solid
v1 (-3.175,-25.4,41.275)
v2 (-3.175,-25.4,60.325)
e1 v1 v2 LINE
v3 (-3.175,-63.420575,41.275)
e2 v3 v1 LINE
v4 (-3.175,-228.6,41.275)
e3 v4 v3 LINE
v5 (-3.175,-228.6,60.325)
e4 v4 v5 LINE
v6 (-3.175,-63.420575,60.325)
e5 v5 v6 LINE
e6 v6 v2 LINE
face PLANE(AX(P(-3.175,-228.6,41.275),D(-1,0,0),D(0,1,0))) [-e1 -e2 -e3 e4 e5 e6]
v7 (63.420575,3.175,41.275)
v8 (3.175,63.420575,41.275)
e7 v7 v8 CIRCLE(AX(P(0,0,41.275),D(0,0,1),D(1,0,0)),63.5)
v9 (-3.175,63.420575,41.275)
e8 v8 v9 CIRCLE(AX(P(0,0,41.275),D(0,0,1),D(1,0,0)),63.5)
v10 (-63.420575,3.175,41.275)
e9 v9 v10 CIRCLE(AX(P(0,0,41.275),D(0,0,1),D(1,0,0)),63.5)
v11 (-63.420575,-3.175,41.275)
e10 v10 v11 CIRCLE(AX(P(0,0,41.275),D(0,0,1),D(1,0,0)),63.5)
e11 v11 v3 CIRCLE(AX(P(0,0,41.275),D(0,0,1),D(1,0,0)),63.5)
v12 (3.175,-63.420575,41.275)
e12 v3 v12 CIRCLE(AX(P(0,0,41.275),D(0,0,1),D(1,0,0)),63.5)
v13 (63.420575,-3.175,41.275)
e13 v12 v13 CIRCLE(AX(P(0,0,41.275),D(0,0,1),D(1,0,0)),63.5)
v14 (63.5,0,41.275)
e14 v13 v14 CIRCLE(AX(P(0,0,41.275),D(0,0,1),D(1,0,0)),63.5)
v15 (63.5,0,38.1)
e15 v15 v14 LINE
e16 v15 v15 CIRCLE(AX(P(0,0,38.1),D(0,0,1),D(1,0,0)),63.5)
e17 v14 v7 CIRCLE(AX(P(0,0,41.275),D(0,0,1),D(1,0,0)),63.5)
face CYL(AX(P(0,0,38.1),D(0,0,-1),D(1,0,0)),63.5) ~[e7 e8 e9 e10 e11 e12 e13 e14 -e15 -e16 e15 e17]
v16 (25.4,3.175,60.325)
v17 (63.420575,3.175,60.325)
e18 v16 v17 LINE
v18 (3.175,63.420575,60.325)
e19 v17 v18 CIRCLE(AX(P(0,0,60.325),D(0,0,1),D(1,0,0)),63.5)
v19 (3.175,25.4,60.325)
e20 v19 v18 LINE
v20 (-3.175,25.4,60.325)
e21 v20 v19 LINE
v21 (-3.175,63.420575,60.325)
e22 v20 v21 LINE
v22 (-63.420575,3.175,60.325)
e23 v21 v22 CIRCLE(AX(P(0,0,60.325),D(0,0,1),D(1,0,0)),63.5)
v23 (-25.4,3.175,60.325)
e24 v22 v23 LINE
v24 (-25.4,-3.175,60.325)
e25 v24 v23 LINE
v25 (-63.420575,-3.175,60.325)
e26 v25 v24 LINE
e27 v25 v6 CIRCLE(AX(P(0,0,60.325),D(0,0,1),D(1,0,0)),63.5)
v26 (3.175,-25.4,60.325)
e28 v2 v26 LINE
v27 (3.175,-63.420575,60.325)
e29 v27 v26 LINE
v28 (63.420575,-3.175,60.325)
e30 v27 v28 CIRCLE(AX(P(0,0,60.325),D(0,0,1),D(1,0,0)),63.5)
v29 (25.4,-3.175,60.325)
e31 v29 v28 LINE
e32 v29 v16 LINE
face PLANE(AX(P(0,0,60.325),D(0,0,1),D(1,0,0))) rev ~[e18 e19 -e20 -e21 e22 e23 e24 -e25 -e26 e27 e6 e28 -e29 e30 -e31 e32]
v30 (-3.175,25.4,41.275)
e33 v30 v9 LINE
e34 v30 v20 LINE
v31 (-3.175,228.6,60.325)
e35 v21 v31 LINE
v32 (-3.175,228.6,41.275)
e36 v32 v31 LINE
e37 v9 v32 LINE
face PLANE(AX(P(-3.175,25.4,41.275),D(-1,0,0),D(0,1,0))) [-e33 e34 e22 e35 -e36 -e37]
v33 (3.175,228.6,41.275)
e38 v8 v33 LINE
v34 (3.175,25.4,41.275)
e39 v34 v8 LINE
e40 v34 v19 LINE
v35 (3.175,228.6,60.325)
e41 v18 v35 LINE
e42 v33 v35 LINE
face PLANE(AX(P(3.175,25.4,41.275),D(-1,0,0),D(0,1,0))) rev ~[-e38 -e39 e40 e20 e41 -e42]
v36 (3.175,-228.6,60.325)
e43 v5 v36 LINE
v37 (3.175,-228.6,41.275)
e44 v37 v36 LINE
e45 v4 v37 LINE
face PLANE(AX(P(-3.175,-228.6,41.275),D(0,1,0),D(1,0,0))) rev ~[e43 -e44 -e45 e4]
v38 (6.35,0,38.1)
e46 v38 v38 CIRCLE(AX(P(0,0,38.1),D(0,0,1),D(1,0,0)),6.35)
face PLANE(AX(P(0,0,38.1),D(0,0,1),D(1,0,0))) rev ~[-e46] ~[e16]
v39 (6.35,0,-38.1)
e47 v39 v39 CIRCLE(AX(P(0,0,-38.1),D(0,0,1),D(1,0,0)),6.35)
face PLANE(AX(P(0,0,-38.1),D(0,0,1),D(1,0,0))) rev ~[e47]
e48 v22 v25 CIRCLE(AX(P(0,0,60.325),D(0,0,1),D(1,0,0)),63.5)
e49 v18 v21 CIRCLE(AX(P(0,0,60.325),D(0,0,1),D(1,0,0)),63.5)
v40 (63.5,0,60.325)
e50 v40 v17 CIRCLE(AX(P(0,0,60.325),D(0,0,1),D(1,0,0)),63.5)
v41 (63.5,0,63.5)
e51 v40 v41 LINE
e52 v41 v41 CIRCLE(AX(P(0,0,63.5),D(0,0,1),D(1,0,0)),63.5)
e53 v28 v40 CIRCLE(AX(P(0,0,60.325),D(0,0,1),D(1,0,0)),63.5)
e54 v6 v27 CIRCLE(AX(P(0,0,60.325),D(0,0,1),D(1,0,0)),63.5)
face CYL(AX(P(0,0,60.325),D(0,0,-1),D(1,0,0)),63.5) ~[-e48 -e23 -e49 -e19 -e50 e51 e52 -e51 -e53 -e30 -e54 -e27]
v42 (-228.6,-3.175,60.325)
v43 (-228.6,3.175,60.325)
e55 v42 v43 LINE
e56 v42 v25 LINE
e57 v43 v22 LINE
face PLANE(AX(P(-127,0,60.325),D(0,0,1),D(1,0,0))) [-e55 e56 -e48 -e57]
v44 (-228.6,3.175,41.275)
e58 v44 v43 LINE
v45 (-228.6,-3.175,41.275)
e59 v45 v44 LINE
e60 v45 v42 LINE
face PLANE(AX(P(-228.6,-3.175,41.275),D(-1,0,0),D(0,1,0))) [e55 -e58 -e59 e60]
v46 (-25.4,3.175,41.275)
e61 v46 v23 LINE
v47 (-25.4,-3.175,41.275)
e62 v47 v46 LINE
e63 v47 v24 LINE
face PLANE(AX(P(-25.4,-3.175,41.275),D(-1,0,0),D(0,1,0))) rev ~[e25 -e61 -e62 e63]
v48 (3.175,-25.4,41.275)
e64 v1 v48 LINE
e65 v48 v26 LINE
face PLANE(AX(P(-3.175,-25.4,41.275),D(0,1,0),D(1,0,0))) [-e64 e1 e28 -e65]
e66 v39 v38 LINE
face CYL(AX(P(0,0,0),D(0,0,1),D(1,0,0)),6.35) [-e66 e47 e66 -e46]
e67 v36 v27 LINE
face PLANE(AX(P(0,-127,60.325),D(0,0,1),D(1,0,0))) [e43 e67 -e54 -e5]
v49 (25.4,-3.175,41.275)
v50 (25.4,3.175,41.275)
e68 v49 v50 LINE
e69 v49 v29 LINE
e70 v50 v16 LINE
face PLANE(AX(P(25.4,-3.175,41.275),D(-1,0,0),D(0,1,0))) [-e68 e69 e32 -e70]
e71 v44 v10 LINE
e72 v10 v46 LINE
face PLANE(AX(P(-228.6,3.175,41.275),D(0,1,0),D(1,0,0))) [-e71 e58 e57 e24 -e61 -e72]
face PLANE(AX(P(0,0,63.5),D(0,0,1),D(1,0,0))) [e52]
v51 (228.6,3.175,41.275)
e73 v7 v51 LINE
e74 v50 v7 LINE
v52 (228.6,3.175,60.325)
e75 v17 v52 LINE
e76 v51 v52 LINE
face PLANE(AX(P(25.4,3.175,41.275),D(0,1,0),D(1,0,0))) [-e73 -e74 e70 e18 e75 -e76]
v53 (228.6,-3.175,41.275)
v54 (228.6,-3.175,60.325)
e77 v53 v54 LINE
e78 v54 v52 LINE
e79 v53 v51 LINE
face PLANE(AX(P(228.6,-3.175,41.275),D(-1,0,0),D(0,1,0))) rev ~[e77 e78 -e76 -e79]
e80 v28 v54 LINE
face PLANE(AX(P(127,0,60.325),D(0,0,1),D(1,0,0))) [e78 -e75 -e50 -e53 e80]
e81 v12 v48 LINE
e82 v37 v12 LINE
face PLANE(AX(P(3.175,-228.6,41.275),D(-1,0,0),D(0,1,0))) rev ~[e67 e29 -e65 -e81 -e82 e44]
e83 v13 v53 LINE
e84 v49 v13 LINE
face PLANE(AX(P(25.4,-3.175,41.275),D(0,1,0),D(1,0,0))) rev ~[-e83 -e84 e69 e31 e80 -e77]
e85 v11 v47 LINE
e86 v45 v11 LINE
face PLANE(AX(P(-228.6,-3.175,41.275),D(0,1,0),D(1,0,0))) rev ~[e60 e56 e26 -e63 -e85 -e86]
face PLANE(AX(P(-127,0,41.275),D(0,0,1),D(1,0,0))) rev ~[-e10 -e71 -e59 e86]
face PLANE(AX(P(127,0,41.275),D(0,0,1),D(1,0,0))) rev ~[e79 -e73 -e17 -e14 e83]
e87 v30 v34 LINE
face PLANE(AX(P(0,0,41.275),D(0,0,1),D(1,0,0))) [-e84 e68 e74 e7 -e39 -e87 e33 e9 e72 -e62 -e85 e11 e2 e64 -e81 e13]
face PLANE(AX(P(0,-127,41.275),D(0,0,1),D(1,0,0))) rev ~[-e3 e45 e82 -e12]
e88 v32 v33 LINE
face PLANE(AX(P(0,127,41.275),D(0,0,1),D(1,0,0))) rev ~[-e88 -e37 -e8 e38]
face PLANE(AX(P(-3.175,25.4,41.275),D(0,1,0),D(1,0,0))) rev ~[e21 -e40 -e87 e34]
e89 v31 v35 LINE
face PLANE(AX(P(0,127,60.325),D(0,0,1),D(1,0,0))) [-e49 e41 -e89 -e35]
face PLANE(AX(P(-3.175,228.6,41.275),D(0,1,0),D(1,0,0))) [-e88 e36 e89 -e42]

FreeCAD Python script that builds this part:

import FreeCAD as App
import Part
import Sketcher
Q = App.Units.Quantity

doc = App.newDocument("Part")
body = doc.addObject("PartDesign::Body", "Body")

# Sketch on XY plane
sketch1 = doc.addObject("Sketcher::SketchObject", "Sketch")
body.addObject(sketch1)
sketch1.AttachmentSupport = (doc.XY_Plane, [""])
sketch1.MapMode = "FlatFace"
sketch1.addGeometry(Part.Circle(App.Vector(0, 0, 0), App.Vector(0, 0, 1), 6), False)
sketch1.addConstraint([
    Sketcher.Constraint("Coincident", 0, 3, -1, 1),
    Sketcher.Constraint("Diameter", 0, Q("0.5 in")),
])
pad1 = doc.addObject("PartDesign::Pad", "Pad")
body.addObject(pad1)
pad1.Profile = sketch1
pad1.Length = Q("3 in")
pad1.Midplane = True
body2 = doc.addObject("PartDesign::Body", "Body001")

# Sketch on XY plane
sketch2 = doc.addObject("Sketcher::SketchObject", "Sketch001")
body2.addObject(sketch2)
sketch2.AttachmentSupport = (doc.getObject("XY_Plane001"), [""])
sketch2.MapMode = "FlatFace"
sketch2.AttachmentOffset = App.Placement(App.Vector(0, 0, 2.375 * 25.4), App.Rotation())
sketch2.addGeometry(Part.Circle(App.Vector(0, 0, 0), App.Vector(0, 0, 1), 64), False)
sketch2.addConstraint([
    Sketcher.Constraint("Coincident", 0, 3, -1, 1),
    Sketcher.Constraint("Diameter", 0, Q("5 in")),
])
pad2 = doc.addObject("PartDesign::Pad", "Pad001")
body2.addObject(pad2)
pad2.Profile = sketch2
pad2.Length = Q("0.125 in")

# Sketch on XY plane
sketch3 = doc.addObject("Sketcher::SketchObject", "Sketch002")
body2.addObject(sketch3)
sketch3.AttachmentSupport = (doc.getObject("XY_Plane001"), [""])
sketch3.MapMode = "FlatFace"
sketch3.AttachmentOffset = App.Placement(App.Vector(0, 0, 1.625 * 25.4), App.Rotation())
sketch3.addGeometry([
    Part.LineSegment(App.Vector(-3, 229, 0), App.Vector(-3, 25, 0)),  # 0
    Part.LineSegment(App.Vector(-3, 25, 0), App.Vector(3, 25, 0)),  # 1
    Part.LineSegment(App.Vector(3, 25, 0), App.Vector(3, 229, 0)),  # 2
    Part.LineSegment(App.Vector(3, 229, 0), App.Vector(-3, 229, 0)),  # 3
    Part.LineSegment(App.Vector(-229, 3, 0), App.Vector(-229, -3, 0)),  # 4
    Part.LineSegment(App.Vector(-229, -3, 0), App.Vector(-25, -3, 0)),  # 5
    Part.LineSegment(App.Vector(-25, -3, 0), App.Vector(-25, 3, 0)),  # 6
    Part.LineSegment(App.Vector(-25, 3, 0), App.Vector(-229, 3, 0)),  # 7
    Part.LineSegment(App.Vector(25, 3, 0), App.Vector(25, -3, 0)),  # 8
    Part.LineSegment(App.Vector(25, -3, 0), App.Vector(229, -3, 0)),  # 9
    Part.LineSegment(App.Vector(229, -3, 0), App.Vector(229, 3, 0)),  # 10
    Part.LineSegment(App.Vector(229, 3, 0), App.Vector(25, 3, 0)),  # 11
    Part.LineSegment(App.Vector(-3, -25, 0), App.Vector(-3, -229, 0)),  # 12
    Part.LineSegment(App.Vector(-3, -229, 0), App.Vector(3, -229, 0)),  # 13
    Part.LineSegment(App.Vector(3, -229, 0), App.Vector(3, -25, 0)),  # 14
    Part.LineSegment(App.Vector(3, -25, 0), App.Vector(-3, -25, 0)),  # 15
], False)
sketch3.addConstraint([
    Sketcher.Constraint("Coincident", 0, 2, 1, 1),
    Sketcher.Constraint("Coincident", 1, 2, 2, 1),
    Sketcher.Constraint("Coincident", 2, 2, 3, 1),
    Sketcher.Constraint("Coincident", 3, 2, 0, 1),
    Sketcher.Constraint("Coincident", 4, 2, 5, 1),
    Sketcher.Constraint("Coincident", 5, 2, 6, 1),
    Sketcher.Constraint("Coincident", 6, 2, 7, 1),
    Sketcher.Constraint("Coincident", 7, 2, 4, 1),
    Sketcher.Constraint("Coincident", 8, 2, 9, 1),
    Sketcher.Constraint("Coincident", 9, 2, 10, 1),
    Sketcher.Constraint("Coincident", 10, 2, 11, 1),
    Sketcher.Constraint("Coincident", 11, 2, 8, 1),
    Sketcher.Constraint("Coincident", 12, 2, 13, 1),
    Sketcher.Constraint("Coincident", 13, 2, 14, 1),
    Sketcher.Constraint("Coincident", 14, 2, 15, 1),
    Sketcher.Constraint("Coincident", 15, 2, 12, 1),
    Sketcher.Constraint("Vertical", 0),
    Sketcher.Constraint("Horizontal", 1),
    Sketcher.Constraint("Vertical", 2),
    Sketcher.Constraint("Horizontal", 3),
    Sketcher.Constraint("Vertical", 4),
    Sketcher.Constraint("Horizontal", 5),
    Sketcher.Constraint("Vertical", 6),
    Sketcher.Constraint("Horizontal", 7),
    Sketcher.Constraint("Vertical", 8),
    Sketcher.Constraint("Horizontal", 9),
    Sketcher.Constraint("Vertical", 10),
    Sketcher.Constraint("Horizontal", 11),
    Sketcher.Constraint("Vertical", 12),
    Sketcher.Constraint("Horizontal", 13),
    Sketcher.Constraint("Vertical", 14),
    Sketcher.Constraint("Horizontal", 15),
    Sketcher.Constraint("Symmetric", 6, 2, 8, 2, -1, 1),
    Sketcher.Constraint("Symmetric", 4, 2, 10, 2, -1, 1),
    Sketcher.Constraint("Symmetric", 2, 2, 12, 2, -1, 1),
    Sketcher.Constraint("Symmetric", 0, 2, 14, 2, -1, 1),
    Sketcher.Constraint("Horizontal", 5, 2, 8, 2),
    Sketcher.Constraint("Vertical", 3, 2, 12, 2),
    Sketcher.Constraint("Equal", 11, 0),
    Sketcher.Constraint("Equal", 15, 4),
    Sketcher.Constraint("DistanceX", 5, 1, 5, 2, Q("8 in")),
    Sketcher.Constraint("DistanceY", -1, 1, 0, 2, Q("1 in")),
    Sketcher.Constraint("DistanceX", 4, 2, -1, 1, Q("9 in")),
    Sketcher.Constraint("DistanceX", 1, 1, 1, 2, Q("0.25 in")),
])
pad3 = doc.addObject("PartDesign::Pad", "Pad002")
body2.addObject(pad3)
pad3.Profile = sketch3
pad3.Length = Q("0.75 in")
body.AllowCompound = True
doc.recompute()

boolean = doc.addObject("PartDesign::Boolean", "Boolean")
body.addObject(boolean)
boolean.Type = "Fuse"
boolean.addObjects([body2])

# Sketch on XY plane
sketch4 = doc.addObject("Sketcher::SketchObject", "Sketch003")
body.addObject(sketch4)
sketch4.AttachmentSupport = (doc.XY_Plane, [""])
sketch4.MapMode = "FlatFace"
sketch4.AttachmentOffset = App.Placement(App.Vector(0, 0, 1.5 * 25.4), App.Rotation())
sketch4.addGeometry(Part.Circle(App.Vector(0, 0, 0), App.Vector(0, 0, 1), 64), False)
sketch4.addConstraint([
    Sketcher.Constraint("Coincident", 0, 3, -1, 1),
    Sketcher.Constraint("Diameter", 0, Q("5 in")),
])
pad4 = doc.addObject("PartDesign::Pad", "Pad003")
body.addObject(pad4)
pad4.Profile = sketch4
pad4.Length = Q("0.125 in")

doc.recompute()
